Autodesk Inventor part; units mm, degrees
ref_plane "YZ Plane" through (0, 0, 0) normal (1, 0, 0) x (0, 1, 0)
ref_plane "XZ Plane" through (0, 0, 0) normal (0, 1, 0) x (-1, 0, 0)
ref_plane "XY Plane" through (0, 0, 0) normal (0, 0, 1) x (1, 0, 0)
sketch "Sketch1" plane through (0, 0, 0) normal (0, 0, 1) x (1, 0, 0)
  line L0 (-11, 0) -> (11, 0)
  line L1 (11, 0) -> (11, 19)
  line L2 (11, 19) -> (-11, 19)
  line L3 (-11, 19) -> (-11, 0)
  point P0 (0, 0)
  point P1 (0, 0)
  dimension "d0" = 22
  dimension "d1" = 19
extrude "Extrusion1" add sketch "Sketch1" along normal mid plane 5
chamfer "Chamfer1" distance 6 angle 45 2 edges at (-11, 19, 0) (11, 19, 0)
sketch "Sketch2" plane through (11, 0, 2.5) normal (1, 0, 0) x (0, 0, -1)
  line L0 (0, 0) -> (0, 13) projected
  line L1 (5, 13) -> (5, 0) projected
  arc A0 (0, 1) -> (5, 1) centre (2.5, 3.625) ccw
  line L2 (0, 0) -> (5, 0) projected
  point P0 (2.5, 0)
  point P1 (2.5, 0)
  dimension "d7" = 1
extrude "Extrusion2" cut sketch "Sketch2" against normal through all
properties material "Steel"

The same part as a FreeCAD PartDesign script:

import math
import FreeCAD as App
import Part
import Sketcher
from FreeCAD import Vector
Q = App.Units.Quantity


def edges_at(feature, points):
    """Names of the edges that pass closest to the given points."""
    edges = feature.Shape.Edges
    near = lambda p: min(range(len(edges)), key=lambda i: edges[i].distToShape(Part.Vertex(*p))[0])
    return sorted({f"Edge{near(p) + 1}" for p in points})

doc = App.newDocument("Part")
body = doc.addObject("PartDesign::Body", "Body")

# Sketch on XY plane
sketch1 = body.newObject("Sketcher::SketchObject", "Sketch")
sketch1.AttachmentSupport = (doc.getObject("XY_Plane"), [""])
sketch1.MapMode = "FlatFace"
sketch1.addGeometry([
    Part.LineSegment(Vector(-11, 19, 0), Vector(-11, 0, 0)),
    Part.LineSegment(Vector(-11, 0, 0), Vector(11, 0, 0)),
    Part.LineSegment(Vector(11, 0, 0), Vector(11, 19, 0)),
    Part.LineSegment(Vector(11, 19, 0), Vector(-11, 19, 0)),
], False)
sketch1.addConstraint([
    Sketcher.Constraint("Coincident", 0, 2, 1, 1),
    Sketcher.Constraint("Coincident", 1, 2, 2, 1),
    Sketcher.Constraint("Coincident", 2, 2, 3, 1),
    Sketcher.Constraint("Coincident", 3, 2, 0, 1),
    Sketcher.Constraint("Vertical", 0),
    Sketcher.Constraint("Horizontal", 1),
    Sketcher.Constraint("Vertical", 2),
    Sketcher.Constraint("Horizontal", 3),
    Sketcher.Constraint("Symmetric", 0, 2, 1, 2, -1, 1),
    Sketcher.Constraint("DistanceX", 1, 1, 1, 2, Q("22 mm")),
    Sketcher.Constraint("DistanceY", 0, 2, 0, 1, Q("19 mm")),
])
pad1 = body.newObject("PartDesign::Pad", "Pad")
pad1.Profile = sketch1
pad1.Length = 5
pad1.Midplane = True
doc.recompute()

chamfer = body.newObject("PartDesign::Chamfer", "Chamfer")
chamfer.Base = (pad1, edges_at(pad1, [(-11, 19, 0), (11, 19, 0)]))
chamfer.Size = 6

# Sketch on YZ plane
sketch2 = body.newObject("Sketcher::SketchObject", "Sketch001")
sketch2.AttachmentSupport = (doc.getObject("YZ_Plane"), [""])
sketch2.MapMode = "FlatFace"
sketch2.AttachmentOffset = App.Placement(Vector(0, 0, 11), App.Rotation())
sketch2.addGeometry([
    Part.ArcOfCircle(Part.Circle(Vector(3.6, 0, 0), Vector(0, 0, 1), 3.6), math.radians(180), math.radians(224)),  # 0
    Part.LineSegment(Vector(0, 0, 0), Vector(0, -2.5, 0)),  # 1
    Part.LineSegment(Vector(0, -2.5, 0), Vector(1, -2.5, 0)),  # 2
    Part.LineSegment(Vector(1, 2.5, 0), Vector(0, 2.5, 0)),  # 3
    Part.LineSegment(Vector(0, 2.5, 0), Vector(0, 0, 0)),  # 4
    Part.ArcOfCircle(Part.Circle(Vector(3.6, 0, 0), Vector(0, 0, 1), 3.6), math.radians(136), math.radians(180)),  # 5
], False)
sketch2.addConstraint([
    Sketcher.Constraint("Tangent", 0, 1, 1, 1),
    Sketcher.Constraint("Coincident", 1, 2, 2, 1),
    Sketcher.Constraint("Coincident", 2, 2, 0, 2),
    Sketcher.Constraint("Coincident", 3, 2, 4, 1),
    Sketcher.Constraint("Tangent", 4, 2, 5, 2),
    Sketcher.Constraint("Coincident", 5, 1, 3, 1),
    Sketcher.Constraint("Vertical", 1),
    Sketcher.Constraint("Horizontal", 2),
    Sketcher.Constraint("Horizontal", 3),
    Sketcher.Constraint("Vertical", 4),
    Sketcher.Constraint("Coincident", 0, 1, -1, 1),
    Sketcher.Constraint("Coincident", 4, 2, -1, 1),
    Sketcher.Constraint("Equal", 0, 5),
    Sketcher.Constraint("Vertical", 2, 2, 5, 1),
    Sketcher.Constraint("DistanceX", 2, 1, 2, 2, Q("1 mm")),
    Sketcher.Constraint("DistanceY", 1, 2, 1, 1, Q("2.5 mm")),
])
pocket1 = body.newObject("PartDesign::Pocket", "Pocket")
pocket1.Profile = sketch2
pocket1.Type = "ThroughAll"

doc.recompute()
